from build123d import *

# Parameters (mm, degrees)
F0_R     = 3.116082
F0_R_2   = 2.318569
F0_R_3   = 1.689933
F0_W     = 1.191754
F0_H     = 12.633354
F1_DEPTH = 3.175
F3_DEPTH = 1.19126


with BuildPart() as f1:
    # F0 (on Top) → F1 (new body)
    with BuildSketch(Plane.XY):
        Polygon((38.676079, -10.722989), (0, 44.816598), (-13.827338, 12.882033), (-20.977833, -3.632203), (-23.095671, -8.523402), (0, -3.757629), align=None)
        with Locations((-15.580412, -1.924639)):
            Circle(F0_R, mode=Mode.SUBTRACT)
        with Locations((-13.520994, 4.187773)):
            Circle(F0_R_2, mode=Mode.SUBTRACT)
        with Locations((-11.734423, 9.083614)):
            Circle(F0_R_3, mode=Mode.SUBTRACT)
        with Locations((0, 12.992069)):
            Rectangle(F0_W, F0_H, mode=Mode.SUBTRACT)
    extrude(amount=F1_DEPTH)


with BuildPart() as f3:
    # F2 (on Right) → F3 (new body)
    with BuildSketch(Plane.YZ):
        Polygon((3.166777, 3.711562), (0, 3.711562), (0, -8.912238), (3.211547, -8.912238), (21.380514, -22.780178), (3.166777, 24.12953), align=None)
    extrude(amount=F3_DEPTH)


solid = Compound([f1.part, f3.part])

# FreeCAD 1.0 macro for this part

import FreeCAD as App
import Part
import Sketcher
Q = App.Units.Quantity

doc = App.newDocument("Part")
body = doc.addObject("PartDesign::Body", "Body")

# Sketch on XY plane
sketch1 = body.newObject("Sketcher::SketchObject", "Sketch")
sketch1.AttachmentSupport = (doc.getObject("XY_Plane"), [""])
sketch1.MapMode = "FlatFace"
sketch1.addGeometry([
    Part.LineSegment(App.Vector(38.7, -10.7, 0), App.Vector(0, 44.8, 0)),  # 0
    Part.LineSegment(App.Vector(0, 44.8, 0), App.Vector(-13.8, 12.9, 0)),  # 1
    Part.LineSegment(App.Vector(-13.8, 12.9, 0), App.Vector(-21, -3.6, 0)),  # 2
    Part.LineSegment(App.Vector(-21, -3.6, 0), App.Vector(-23.1, -8.5, 0)),  # 3
    Part.LineSegment(App.Vector(-23.1, -8.5, 0), App.Vector(0, -3.8, 0)),  # 4
    Part.LineSegment(App.Vector(0, -3.8, 0), App.Vector(38.7, -10.7, 0)),  # 5
    Part.Circle(App.Vector(-15.6, -1.9, 0), App.Vector(0, 0, 1), 3.1),  # 6
    Part.Circle(App.Vector(-13.5, 4.2, 0), App.Vector(0, 0, 1), 2.3),  # 7
    Part.Circle(App.Vector(-11.7, 9.1, 0), App.Vector(0, 0, 1), 1.7),  # 8
    Part.LineSegment(App.Vector(0.6, 6.7, 0), App.Vector(-0.6, 6.7, 0)),  # 9
    Part.LineSegment(App.Vector(-0.6, 6.7, 0), App.Vector(-0.6, 19.3, 0)),  # 10
    Part.LineSegment(App.Vector(-0.6, 19.3, 0), App.Vector(0.6, 19.3, 0)),  # 11
    Part.LineSegment(App.Vector(0.6, 19.3, 0), App.Vector(0.6, 6.7, 0)),  # 12
], False)
sketch1.addConstraint([
    Sketcher.Constraint("Coincident", 0, 2, 1, 1),
    Sketcher.Constraint("Coincident", 1, 2, 2, 1),
    Sketcher.Constraint("Coincident", 2, 2, 3, 1),
    Sketcher.Constraint("Coincident", 3, 2, 4, 1),
    Sketcher.Constraint("Coincident", 4, 2, 5, 1),
    Sketcher.Constraint("Coincident", 5, 2, 0, 1),
    Sketcher.Constraint("Coincident", 9, 2, 10, 1),
    Sketcher.Constraint("Coincident", 10, 2, 11, 1),
    Sketcher.Constraint("Coincident", 11, 2, 12, 1),
    Sketcher.Constraint("Coincident", 12, 2, 9, 1),
    Sketcher.Constraint("Horizontal", 9),
    Sketcher.Constraint("Vertical", 10),
    Sketcher.Constraint("Horizontal", 11),
    Sketcher.Constraint("Vertical", 12),
    Sketcher.Constraint("PointOnObject", 0, 2, -2),
    Sketcher.Constraint("PointOnObject", 4, 2, -2),
    Sketcher.Constraint("Parallel", 1, 2),
    Sketcher.Constraint("Parallel", 2, 3),
    Sketcher.Constraint("Diameter", 7, Q("4.637138 mm")),
    Sketcher.Constraint("DistanceY", 2, 2, -1, 1, Q("0.1430001 in")),
    Sketcher.Constraint("Diameter", 6, Q("6.232164 mm")),
    Sketcher.Constraint("Diameter", 8, Q("3.379866 mm")),
    Sketcher.Constraint("DistanceY", 2, 2, 0, 2, Q("48.448801 mm")),
    Sketcher.Constraint("DistanceY", 3, 2, 2, 2, Q("4.891199 mm")),
    Sketcher.Constraint("DistanceY", 4, 2, 7, 3, Q("7.945402 mm")),
    Sketcher.Constraint("DistanceX", 8, 3, 11, 2, Q("12.3303 mm")),
    Sketcher.Constraint("Distance", 0, Q("67.679279 mm")),
    Sketcher.Constraint("Distance", 2, Q("17.995821 mm")),
    Sketcher.Constraint("DistanceX", 9, 2, 9, 1, Q("1.191754 mm")),
    Sketcher.Constraint("DistanceY", 10, 1, 10, 2, Q("12.633354 mm")),
    Sketcher.Constraint("DistanceY", 6, 3, -1, 1, Q("1.924639 mm")),
    Sketcher.Constraint("DistanceX", 3, 2, -1, 1, Q("23.095671 mm")),
    Sketcher.Constraint("DistanceY", 4, 2, -1, 1, Q("3.757629 mm")),
    Sketcher.Constraint("DistanceX", -1, 1, 5, 2, Q("38.676079 mm")),
    Sketcher.Constraint("DistanceX", 6, 3, 7, 3, Q("2.059418 mm")),
    Sketcher.Constraint("DistanceX", 7, 3, 8, 3, Q("1.786571 mm")),
    Sketcher.Constraint("DistanceY", 7, 3, 8, 3, Q("4.895841 mm")),
    Sketcher.Constraint("DistanceX", 2, 2, 6, 3, Q("5.397421 mm")),
    Sketcher.Constraint("DistanceY", 4, 2, 9, 2, Q("10.433021 mm")),
])
pad1 = body.newObject("PartDesign::Pad", "Pad")
pad1.Profile = sketch1
pad1.Length = Q("0.125 in")
body2 = doc.addObject("PartDesign::Body", "Body001")

# Sketch on YZ plane
sketch2 = body2.newObject("Sketcher::SketchObject", "Sketch001")
sketch2.AttachmentSupport = (doc.getObject("YZ_Plane001"), [""])
sketch2.MapMode = "FlatFace"
sketch2.addGeometry([
    Part.LineSegment(App.Vector(3.2, 3.7, 0), App.Vector(0, 3.7, 0)),  # 0
    Part.LineSegment(App.Vector(0, 3.7, 0), App.Vector(0, -8.9, 0)),  # 1
    Part.LineSegment(App.Vector(0, -8.9, 0), App.Vector(3.2, -8.9, 0)),  # 2
    Part.LineSegment(App.Vector(3.2, -8.9, 0), App.Vector(21.4, -22.8, 0)),  # 3
    Part.LineSegment(App.Vector(21.4, -22.8, 0), App.Vector(3.2, 24.1, 0)),  # 4
    Part.LineSegment(App.Vector(3.2, 24.1, 0), App.Vector(3.2, 3.7, 0)),  # 5
], False)
sketch2.addConstraint([
    Sketcher.Constraint("Coincident", 0, 2, 1, 1),
    Sketcher.Constraint("Coincident", 1, 2, 2, 1),
    Sketcher.Constraint("Coincident", 2, 2, 3, 1),
    Sketcher.Constraint("Coincident", 3, 2, 4, 1),
    Sketcher.Constraint("Coincident", 4, 2, 5, 1),
    Sketcher.Constraint("Coincident", 5, 2, 0, 1),
    Sketcher.Constraint("Horizontal", 0),
    Sketcher.Constraint("Vertical", 1),
    Sketcher.Constraint("Horizontal", 2),
    Sketcher.Constraint("Vertical", 5),
    Sketcher.Constraint("PointOnObject", 0, 2, -2),
    Sketcher.Constraint("DistanceY", 1, 2, 1, 1, Q("0.497 in")),
    Sketcher.Constraint("DistanceX", 0, 2, 0, 1, Q("3.166777 mm")),
    Sketcher.Constraint("DistanceX", 2, 1, 2, 2, Q("3.211547 mm")),
    Sketcher.Constraint("DistanceY", 5, 2, 5, 1, Q("20.417968 mm")),
    Sketcher.Constraint("DistanceY", -1, 1, 0, 2, Q("3.711562 mm")),
    Sketcher.Constraint("DistanceY", 3, 2, 2, 2, Q("13.86794 mm")),
    Sketcher.Constraint("Distance", 3, Q("22.856752 mm")),
])
pad2 = body2.newObject("PartDesign::Pad", "Pad001")
pad2.Profile = sketch2
pad2.Length = Q("0.0469 in")

doc.recompute()
